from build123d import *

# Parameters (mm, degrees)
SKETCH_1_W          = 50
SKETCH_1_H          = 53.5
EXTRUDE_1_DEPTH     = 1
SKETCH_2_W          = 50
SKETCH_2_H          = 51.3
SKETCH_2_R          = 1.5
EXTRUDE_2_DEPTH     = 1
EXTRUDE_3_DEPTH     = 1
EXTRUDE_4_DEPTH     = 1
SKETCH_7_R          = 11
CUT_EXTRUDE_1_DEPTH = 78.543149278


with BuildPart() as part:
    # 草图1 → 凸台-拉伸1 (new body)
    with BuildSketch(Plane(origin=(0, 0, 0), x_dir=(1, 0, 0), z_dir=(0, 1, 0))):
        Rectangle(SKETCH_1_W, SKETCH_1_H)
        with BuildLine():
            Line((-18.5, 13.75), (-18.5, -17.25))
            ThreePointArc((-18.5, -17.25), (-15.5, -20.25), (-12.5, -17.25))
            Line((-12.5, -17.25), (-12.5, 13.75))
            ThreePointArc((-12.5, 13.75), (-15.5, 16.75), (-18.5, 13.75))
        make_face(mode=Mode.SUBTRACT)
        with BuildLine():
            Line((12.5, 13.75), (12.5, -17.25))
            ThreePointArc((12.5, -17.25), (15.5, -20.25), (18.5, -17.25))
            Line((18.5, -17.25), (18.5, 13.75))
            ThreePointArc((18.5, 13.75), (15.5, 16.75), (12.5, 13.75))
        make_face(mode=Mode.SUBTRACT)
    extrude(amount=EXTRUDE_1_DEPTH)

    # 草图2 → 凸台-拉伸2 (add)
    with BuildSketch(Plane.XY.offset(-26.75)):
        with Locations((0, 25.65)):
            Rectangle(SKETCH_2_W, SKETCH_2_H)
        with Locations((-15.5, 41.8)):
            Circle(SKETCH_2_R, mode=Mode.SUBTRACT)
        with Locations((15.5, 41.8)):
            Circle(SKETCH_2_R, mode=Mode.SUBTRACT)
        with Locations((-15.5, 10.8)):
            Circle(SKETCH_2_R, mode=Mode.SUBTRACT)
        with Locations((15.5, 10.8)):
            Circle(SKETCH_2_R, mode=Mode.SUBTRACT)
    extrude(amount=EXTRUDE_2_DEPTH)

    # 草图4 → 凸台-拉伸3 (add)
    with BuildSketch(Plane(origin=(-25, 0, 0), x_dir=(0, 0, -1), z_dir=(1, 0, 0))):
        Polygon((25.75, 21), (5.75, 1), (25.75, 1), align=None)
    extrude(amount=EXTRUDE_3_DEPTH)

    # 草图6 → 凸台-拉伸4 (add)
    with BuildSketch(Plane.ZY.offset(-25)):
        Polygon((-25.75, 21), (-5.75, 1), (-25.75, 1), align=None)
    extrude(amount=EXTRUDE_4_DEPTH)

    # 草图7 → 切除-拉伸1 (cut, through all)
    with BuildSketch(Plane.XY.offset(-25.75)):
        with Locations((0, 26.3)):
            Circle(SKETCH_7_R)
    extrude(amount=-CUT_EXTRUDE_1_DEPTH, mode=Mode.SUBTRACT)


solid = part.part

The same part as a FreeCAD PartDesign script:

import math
import FreeCAD as App
import Part
import Sketcher
Q = App.Units.Quantity


def add_polygon(sketch, points):
    """Adds a closed chain of lines whose ends are joined by coincident constraints."""
    first, n = sketch.GeometryCount, len(points)
    for a, b in zip(points, points[1:] + points[:1]):
        sketch.addGeometry(Part.LineSegment(App.Vector(*a, 0), App.Vector(*b, 0)), False)
    for i in range(n):
        sketch.addConstraint(Sketcher.Constraint("Coincident", first + i, 2, first + (i + 1) % n, 1))

doc = App.newDocument("Part")
body = doc.addObject("PartDesign::Body", "Body")

# Sketch on XZ plane
sketch1 = body.newObject("Sketcher::SketchObject", "Sketch")
sketch1.AttachmentSupport = (doc.getObject("XZ_Plane"), [""])
sketch1.MapMode = "FlatFace"
add_polygon(sketch1, [(-25, -26.75), (-25, 26.75), (25, 26.75), (25, -26.75)])  # lines 0-3
sketch1.addGeometry(Part.LineSegment(App.Vector(-18.5, 17.25, 0), App.Vector(-18.5, -13.75, 0)), False)  # 4
sketch1.addGeometry(Part.ArcOfCircle(Part.Circle(App.Vector(-15.5, -13.75, 0), App.Vector(0, 0, 1), 3), math.radians(180), math.radians(360)), False)  # 5
sketch1.addGeometry(Part.LineSegment(App.Vector(-12.5, -13.75, 0), App.Vector(-12.5, 17.25, 0)), False)  # 6
sketch1.addGeometry(Part.ArcOfCircle(Part.Circle(App.Vector(-15.5, 17.25, 0), App.Vector(0, 0, 1), 3), math.radians(0), math.radians(180)), False)  # 7
sketch1.addGeometry(Part.LineSegment(App.Vector(12.5, 17.25, 0), App.Vector(12.5, -13.75, 0)), False)  # 8
sketch1.addGeometry(Part.ArcOfCircle(Part.Circle(App.Vector(15.5, -13.75, 0), App.Vector(0, 0, 1), 3), math.radians(180), math.radians(360)), False)  # 9
sketch1.addGeometry(Part.LineSegment(App.Vector(18.5, -13.75, 0), App.Vector(18.5, 17.25, 0)), False)  # 10
sketch1.addGeometry(Part.ArcOfCircle(Part.Circle(App.Vector(15.5, 17.25, 0), App.Vector(0, 0, 1), 3), math.radians(0), math.radians(180)), False)  # 11
sketch1.addConstraint([
    Sketcher.Constraint("Tangent", 4, 2, 5, 1),
    Sketcher.Constraint("Tangent", 5, 2, 6, 1),
    Sketcher.Constraint("Tangent", 6, 2, 7, 1),
    Sketcher.Constraint("Tangent", 7, 2, 4, 1),
    Sketcher.Constraint("Tangent", 8, 2, 9, 1),
    Sketcher.Constraint("Tangent", 9, 2, 10, 1),
    Sketcher.Constraint("Tangent", 10, 2, 11, 1),
    Sketcher.Constraint("Tangent", 11, 2, 8, 1),
    Sketcher.Constraint("Vertical", 0),
    Sketcher.Constraint("Horizontal", 1),
    Sketcher.Constraint("Vertical", 2),
    Sketcher.Constraint("Horizontal", 3),
    Sketcher.Constraint("Vertical", 4),
    Sketcher.Constraint("Vertical", 6),
    Sketcher.Constraint("Vertical", 8),
    Sketcher.Constraint("Vertical", 10),
    Sketcher.Constraint("Equal", 7, 9),
    Sketcher.Constraint("Symmetric", 0, 2, 2, 2, -1, 1),
    Sketcher.Constraint("Symmetric", 5, 3, 9, 3, -2),
    Sketcher.Constraint("Horizontal", 7, 3, 11, 3),
    Sketcher.Constraint("Radius", 5, Q("3 mm")),
    Sketcher.Constraint("DistanceX", 1, 1, 1, 2, Q("50 mm")),
    Sketcher.Constraint("DistanceY", 4, 2, 4, 1, Q("31 mm")),
    Sketcher.Constraint("DistanceY", 0, 1, 0, 2, Q("53.5 mm")),
    Sketcher.Constraint("DistanceX", 5, 3, 9, 3, Q("31 mm")),
    Sketcher.Constraint("DistanceY", 2, 2, 9, 3, Q("13 mm")),
])
pad1 = body.newObject("PartDesign::Pad", "Pad")
pad1.Profile = sketch1
pad1.Length = 1
pad1.Reversed = True

# Sketch on XY plane
sketch2 = body.newObject("Sketcher::SketchObject", "Sketch001")
sketch2.AttachmentSupport = (doc.getObject("XY_Plane"), [""])
sketch2.MapMode = "FlatFace"
sketch2.AttachmentOffset = App.Placement(App.Vector(0, 0, -26.75), App.Rotation())
add_polygon(sketch2, [(-25, 51.3), (-25, 0), (25, 0), (25, 51.3)])  # lines 0-3
sketch2.addGeometry(Part.Circle(App.Vector(-15.5, 10.8, 0), App.Vector(0, 0, 1), 1.5), False)  # 4
sketch2.addGeometry(Part.Circle(App.Vector(15.5, 10.8, 0), App.Vector(0, 0, 1), 1.5), False)  # 5
sketch2.addGeometry(Part.Circle(App.Vector(-15.5, 41.8, 0), App.Vector(0, 0, 1), 1.5), False)  # 6
sketch2.addGeometry(Part.Circle(App.Vector(15.5, 41.8, 0), App.Vector(0, 0, 1), 1.5), False)  # 7
sketch2.addConstraint([
    Sketcher.Constraint("Vertical", 0),
    Sketcher.Constraint("Horizontal", 1),
    Sketcher.Constraint("Vertical", 2),
    Sketcher.Constraint("Horizontal", 3),
    Sketcher.Constraint("Equal", 4, 5),
    Sketcher.Constraint("Equal", 5, 6),
    Sketcher.Constraint("Equal", 6, 7),
    Sketcher.Constraint("Symmetric", 0, 2, 1, 2, -1, 1),
    Sketcher.Constraint("Symmetric", 4, 3, 5, 3, -2),
    Sketcher.Constraint("Symmetric", 6, 3, 7, 3, -2),
    Sketcher.Constraint("Vertical", 4, 3, 6, 3),
    Sketcher.Constraint("Diameter", 4, Q("3 mm")),
    Sketcher.Constraint("DistanceX", 1, 1, 1, 2, Q("50 mm")),
    Sketcher.Constraint("DistanceY", 0, 2, 0, 1, Q("51.3 mm")),
    Sketcher.Constraint("DistanceX", 4, 3, 5, 3, Q("31 mm")),
    Sketcher.Constraint("DistanceY", 4, 3, 6, 3, Q("31 mm")),
    Sketcher.Constraint("DistanceY", -1, 1, 4, 3, Q("10.8 mm")),
])
pad2 = body.newObject("PartDesign::Pad", "Pad001")
pad2.Profile = sketch2
pad2.Length = 1

# Sketch on YZ plane
sketch3 = body.newObject("Sketcher::SketchObject", "Sketch002")
sketch3.AttachmentSupport = (doc.getObject("YZ_Plane"), [""])
sketch3.MapMode = "FlatFace"
sketch3.AttachmentOffset = App.Placement(App.Vector(0, 0, -25), App.Rotation())
add_polygon(sketch3, [(21, -25.75), (1, -5.75), (1, -25.75)])  # lines 0-2
sketch3.addConstraint([
    Sketcher.Constraint("Vertical", 1),
    Sketcher.Constraint("Horizontal", 2),
    Sketcher.Constraint("Equal", 2, 1),
    Sketcher.Constraint("DistanceX", 2, 1, 2, 2, Q("20 mm")),
    Sketcher.Constraint("DistanceX", -1, 1, 0, 2, Q("1 mm")),
    Sketcher.Constraint("DistanceY", 0, 2, -1, 1, Q("5.75 mm")),
])
pad3 = body.newObject("PartDesign::Pad", "Pad002")
pad3.Profile = sketch3
pad3.Length = 1

# Sketch on YZ plane
sketch4 = body.newObject("Sketcher::SketchObject", "Sketch003")
sketch4.AttachmentSupport = (doc.getObject("YZ_Plane"), [""])
sketch4.MapMode = "FlatFace"
sketch4.AttachmentOffset = App.Placement(App.Vector(0, 0, 25), App.Rotation())
add_polygon(sketch4, [(1, -5.75), (21, -25.75), (1, -25.75)])  # lines 0-2
sketch4.addConstraint([
    Sketcher.Constraint("Horizontal", 1),
    Sketcher.Constraint("Vertical", 2),
    Sketcher.Constraint("Equal", 1, 2),
    Sketcher.Constraint("DistanceX", 1, 2, 1, 1, Q("20 mm")),
    Sketcher.Constraint("DistanceX", -1, 1, 0, 2, Q("21 mm")),
    Sketcher.Constraint("DistanceY", 0, 2, -1, 1, Q("25.75 mm")),
])
pad4 = body.newObject("PartDesign::Pad", "Pad003")
pad4.Profile = sketch4
pad4.Length = 1
pad4.Reversed = True

# Sketch on XY plane
sketch5 = body.newObject("Sketcher::SketchObject", "Sketch004")
sketch5.AttachmentSupport = (doc.getObject("XY_Plane"), [""])
sketch5.MapMode = "FlatFace"
sketch5.AttachmentOffset = App.Placement(App.Vector(0, 0, -25.75), App.Rotation())
sketch5.addGeometry(Part.Circle(App.Vector(0, 26.3, 0), App.Vector(0, 0, 1), 11), False)
sketch5.addConstraint([
    Sketcher.Constraint("PointOnObject", 0, 3, -2),
    Sketcher.Constraint("Diameter", 0, Q("22 mm")),
    Sketcher.Constraint("DistanceY", -1, 1, 0, 3, Q("26.3 mm")),
])
pocket1 = body.newObject("PartDesign::Pocket", "Pocket")
pocket1.Profile = sketch5
pocket1.Type = "ThroughAll"

doc.recompute()
